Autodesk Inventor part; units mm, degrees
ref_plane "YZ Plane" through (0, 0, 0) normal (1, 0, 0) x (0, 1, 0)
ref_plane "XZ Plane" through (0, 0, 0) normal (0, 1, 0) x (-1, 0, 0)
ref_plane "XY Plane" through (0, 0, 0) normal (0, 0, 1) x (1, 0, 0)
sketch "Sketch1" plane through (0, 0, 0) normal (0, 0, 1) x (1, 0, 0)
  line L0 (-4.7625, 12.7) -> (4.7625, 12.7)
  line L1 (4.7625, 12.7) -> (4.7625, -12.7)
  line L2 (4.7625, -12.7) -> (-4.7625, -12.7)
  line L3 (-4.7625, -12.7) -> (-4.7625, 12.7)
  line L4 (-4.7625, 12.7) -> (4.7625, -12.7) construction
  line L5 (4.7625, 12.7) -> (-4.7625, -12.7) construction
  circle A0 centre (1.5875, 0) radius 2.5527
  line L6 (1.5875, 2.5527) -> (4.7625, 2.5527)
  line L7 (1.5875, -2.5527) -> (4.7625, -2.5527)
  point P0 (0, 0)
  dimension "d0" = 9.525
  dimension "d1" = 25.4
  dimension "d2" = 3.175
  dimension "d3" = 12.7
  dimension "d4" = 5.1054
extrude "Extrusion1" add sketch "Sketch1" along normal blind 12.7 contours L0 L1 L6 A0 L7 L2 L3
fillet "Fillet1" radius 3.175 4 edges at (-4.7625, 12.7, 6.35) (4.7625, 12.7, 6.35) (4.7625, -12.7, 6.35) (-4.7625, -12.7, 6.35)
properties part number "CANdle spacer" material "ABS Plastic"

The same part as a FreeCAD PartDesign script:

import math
import FreeCAD as App
import Part
import Sketcher
Q = App.Units.Quantity


def edges_at(feature, points):
    """Names of the edges that pass closest to the given points."""
    edges = feature.Shape.Edges
    near = lambda p: min(range(len(edges)), key=lambda i: edges[i].distToShape(Part.Vertex(*p))[0])
    return sorted({f"Edge{near(p) + 1}" for p in points})

doc = App.newDocument("Part")
params = doc.addObject("Spreadsheet::Sheet", "Params")
for row, (alias, value) in enumerate([
    ("sketch1_height", "1 in"),
    ("sketch1_width", "0.375 in"),
    ("sketch1_width2", "0.125 in"),
    ("pad1_length", "0.5 in"),
    ("fillet_radius", "0.125 in"),
], start=1):
    params.set(f"A{row}", alias)
    params.set(f"B{row}", "=" + value)
    params.setAlias(f"B{row}", alias)

body = doc.addObject("PartDesign::Body", "Body")

sketch1 = body.newObject("Sketcher::SketchObject", "Sketch")
sketch1.AttachmentSupport = (doc.getObject("XY_Plane"), [""])
sketch1.MapMode = "FlatFace"
sketch1.addGeometry(Part.LineSegment(App.Vector(4.8, 12.7, 0), App.Vector(-4.8, 12.7, 0)), False)
sketch1.addGeometry(Part.LineSegment(App.Vector(-4.8, 12.7, 0), App.Vector(-4.8, -12.7, 0)), False)
sketch1.addGeometry(Part.LineSegment(App.Vector(-4.8, -12.7, 0), App.Vector(4.8, -12.7, 0)), False)
sketch1.addGeometry(Part.LineSegment(App.Vector(4.8, -12.7, 0), App.Vector(4.8, -2.6, 0)), False)
sketch1.addGeometry(Part.LineSegment(App.Vector(4.8, -2.6, 0), App.Vector(1.6, -2.6, 0)), False)
sketch1.addGeometry(Part.ArcOfCircle(Part.Circle(App.Vector(1.6, 0, 0), App.Vector(0, 0, 1), 2.6), math.radians(90), math.radians(270)), False)
sketch1.addGeometry(Part.LineSegment(App.Vector(1.6, 2.6, 0), App.Vector(4.8, 2.6, 0)), False)
sketch1.addGeometry(Part.LineSegment(App.Vector(4.8, 2.6, 0), App.Vector(4.8, 12.7, 0)), False)
sketch1.addConstraint(Sketcher.Constraint("Coincident", 0, 2, 1, 1))
sketch1.addConstraint(Sketcher.Constraint("Coincident", 1, 2, 2, 1))
sketch1.addConstraint(Sketcher.Constraint("Coincident", 2, 2, 3, 1))
sketch1.addConstraint(Sketcher.Constraint("Coincident", 3, 2, 4, 1))
sketch1.addConstraint(Sketcher.Constraint("Tangent", 4, 2, 5, 2))
sketch1.addConstraint(Sketcher.Constraint("Tangent", 5, 1, 6, 1))
sketch1.addConstraint(Sketcher.Constraint("Coincident", 6, 2, 7, 1))
sketch1.addConstraint(Sketcher.Constraint("Coincident", 7, 2, 0, 1))
sketch1.addConstraint(Sketcher.Constraint("Horizontal", 0))
sketch1.addConstraint(Sketcher.Constraint("Vertical", 1))
sketch1.addConstraint(Sketcher.Constraint("Horizontal", 2))
sketch1.addConstraint(Sketcher.Constraint("Vertical", 3))
sketch1.addConstraint(Sketcher.Constraint("Horizontal", 4))
sketch1.addConstraint(Sketcher.Constraint("Horizontal", 6))
sketch1.addConstraint(Sketcher.Constraint("Vertical", 7))
sketch1.addConstraint(Sketcher.Constraint("Symmetric", 0, 2, 2, 2, -1, 1))
sketch1.addConstraint(Sketcher.Constraint("Symmetric", 3, 2, 6, 2, -1))
sketch1.addConstraint(Sketcher.Constraint("DistanceY", 1, 2, 1, 1, Q("1 in")))
sketch1.addConstraint(Sketcher.Constraint("Radius", 5, Q("0.1005 in")))
sketch1.addConstraint(Sketcher.Constraint("DistanceX", 0, 2, 0, 1, Q("0.375 in")))
sketch1.addConstraint(Sketcher.Constraint("DistanceX", 4, 2, 4, 1, Q("0.125 in")))
sketch1.setExpression("Constraints[17]", "Params.sketch1_height")
sketch1.setExpression("Constraints[19]", "Params.sketch1_width")
sketch1.setExpression("Constraints[20]", "Params.sketch1_width2")
pad1 = body.newObject("PartDesign::Pad", "Pad")
pad1.Profile = sketch1
pad1.setExpression("Length", "Params.pad1_length")
doc.recompute()

fillet = body.newObject("PartDesign::Fillet", "Fillet")
fillet.Base = (pad1, edges_at(pad1, [
    (-4.763, 12.7, 6.35),
    (4.763, 12.7, 6.35),
    (4.763, -12.7, 6.35),
    (-4.763, -12.7, 6.35),
]))
fillet.setExpression("Radius", "Params.fillet_radius")

doc.recompute()
